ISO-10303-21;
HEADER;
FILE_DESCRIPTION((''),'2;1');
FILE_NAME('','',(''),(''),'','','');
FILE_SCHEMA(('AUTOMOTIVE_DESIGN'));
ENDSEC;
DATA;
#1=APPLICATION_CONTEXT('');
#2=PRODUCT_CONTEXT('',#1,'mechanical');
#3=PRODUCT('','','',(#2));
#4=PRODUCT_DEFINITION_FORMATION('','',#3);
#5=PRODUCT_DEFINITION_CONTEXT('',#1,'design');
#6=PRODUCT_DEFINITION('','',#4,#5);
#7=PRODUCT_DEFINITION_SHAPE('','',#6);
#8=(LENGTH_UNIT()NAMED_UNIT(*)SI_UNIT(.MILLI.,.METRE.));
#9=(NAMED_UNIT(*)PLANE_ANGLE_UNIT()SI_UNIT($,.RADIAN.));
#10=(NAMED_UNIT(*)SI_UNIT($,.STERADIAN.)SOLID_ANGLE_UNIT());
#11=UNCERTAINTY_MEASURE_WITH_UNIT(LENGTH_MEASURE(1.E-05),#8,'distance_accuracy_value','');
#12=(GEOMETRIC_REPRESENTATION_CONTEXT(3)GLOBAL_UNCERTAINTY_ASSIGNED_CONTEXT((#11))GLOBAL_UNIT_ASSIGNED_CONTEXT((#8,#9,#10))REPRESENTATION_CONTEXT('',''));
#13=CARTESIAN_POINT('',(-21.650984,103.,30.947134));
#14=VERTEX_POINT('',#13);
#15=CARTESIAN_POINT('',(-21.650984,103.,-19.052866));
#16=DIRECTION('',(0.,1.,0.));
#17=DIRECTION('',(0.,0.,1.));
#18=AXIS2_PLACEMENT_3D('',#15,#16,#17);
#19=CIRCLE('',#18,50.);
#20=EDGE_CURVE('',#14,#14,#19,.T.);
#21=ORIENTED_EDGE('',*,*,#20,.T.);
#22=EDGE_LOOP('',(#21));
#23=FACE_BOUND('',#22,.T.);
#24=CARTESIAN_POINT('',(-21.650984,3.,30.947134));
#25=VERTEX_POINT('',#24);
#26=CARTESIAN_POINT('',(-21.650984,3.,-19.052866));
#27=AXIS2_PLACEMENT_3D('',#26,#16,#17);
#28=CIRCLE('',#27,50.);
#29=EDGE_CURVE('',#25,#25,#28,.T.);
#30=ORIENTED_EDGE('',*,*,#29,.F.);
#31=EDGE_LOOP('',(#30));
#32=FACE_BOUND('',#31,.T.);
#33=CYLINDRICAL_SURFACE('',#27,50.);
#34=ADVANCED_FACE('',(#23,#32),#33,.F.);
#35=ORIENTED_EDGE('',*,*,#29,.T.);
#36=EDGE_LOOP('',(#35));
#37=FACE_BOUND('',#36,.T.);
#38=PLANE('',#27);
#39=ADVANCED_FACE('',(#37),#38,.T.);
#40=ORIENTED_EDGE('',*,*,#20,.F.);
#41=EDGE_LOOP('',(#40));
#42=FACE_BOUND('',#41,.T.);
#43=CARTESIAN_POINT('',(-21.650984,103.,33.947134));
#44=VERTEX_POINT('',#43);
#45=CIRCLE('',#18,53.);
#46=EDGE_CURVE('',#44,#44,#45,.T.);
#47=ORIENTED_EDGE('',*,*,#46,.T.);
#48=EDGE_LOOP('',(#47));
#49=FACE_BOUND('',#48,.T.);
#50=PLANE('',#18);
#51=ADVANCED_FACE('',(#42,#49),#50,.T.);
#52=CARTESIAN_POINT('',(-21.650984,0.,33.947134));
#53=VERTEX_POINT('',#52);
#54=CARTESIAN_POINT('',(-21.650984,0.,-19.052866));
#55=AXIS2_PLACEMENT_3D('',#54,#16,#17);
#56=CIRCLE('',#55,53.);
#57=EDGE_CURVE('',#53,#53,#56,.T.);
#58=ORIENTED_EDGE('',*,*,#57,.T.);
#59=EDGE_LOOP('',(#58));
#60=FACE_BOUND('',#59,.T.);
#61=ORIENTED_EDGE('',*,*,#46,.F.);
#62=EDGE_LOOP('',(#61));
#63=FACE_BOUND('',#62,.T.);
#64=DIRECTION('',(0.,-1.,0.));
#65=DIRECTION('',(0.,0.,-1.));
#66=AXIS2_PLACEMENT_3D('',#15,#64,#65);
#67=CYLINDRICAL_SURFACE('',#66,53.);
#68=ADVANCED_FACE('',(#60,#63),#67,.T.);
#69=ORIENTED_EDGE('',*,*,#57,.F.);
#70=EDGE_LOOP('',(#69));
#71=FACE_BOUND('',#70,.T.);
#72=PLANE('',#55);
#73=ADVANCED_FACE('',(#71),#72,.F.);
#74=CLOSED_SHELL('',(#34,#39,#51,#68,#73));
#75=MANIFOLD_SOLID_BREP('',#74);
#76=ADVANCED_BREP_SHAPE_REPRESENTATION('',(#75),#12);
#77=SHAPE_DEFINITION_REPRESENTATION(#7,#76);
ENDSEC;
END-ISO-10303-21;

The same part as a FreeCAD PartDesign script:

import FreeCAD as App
import Part
import Sketcher
from FreeCAD import Vector

doc = App.newDocument("Part")
body = doc.addObject("PartDesign::Body", "Body")

# Sketch on XZ plane
sketch1 = doc.addObject("Sketcher::SketchObject", "Sketch")
body.addObject(sketch1)
sketch1.AttachmentSupport = (doc.XZ_Plane, [""])
sketch1.MapMode = "FlatFace"
sketch1.addGeometry(Part.Circle(Vector(-22, -19, 0), Vector(0, 0, 1), 53), False)
sketch1.addConstraint([
    Sketcher.Constraint("Diameter", 0, 106.0),
    Sketcher.Constraint("DistanceX", 0, 3, -1, 1, 21.650984),
    Sketcher.Constraint("DistanceY", 0, 3, -1, 1, 19.052866),
])
pad1 = doc.addObject("PartDesign::Pad", "Pad")
body.addObject(pad1)
pad1.Profile = sketch1
pad1.Length = 103
pad1.Reversed = True

# Sketch on XZ plane
sketch2 = doc.addObject("Sketcher::SketchObject", "Sketch001")
body.addObject(sketch2)
sketch2.AttachmentSupport = (doc.XZ_Plane, [""])
sketch2.MapMode = "FlatFace"
sketch2.AttachmentOffset = App.Placement(Vector(0, 0, -103), App.Rotation())
sketch2.addGeometry(Part.Circle(Vector(-22, -19, 0), Vector(0, 0, 1), 50), False)
sketch2.addConstraint([
    Sketcher.Constraint("Diameter", 0, 100.0),
    Sketcher.Constraint("DistanceX", 0, 3, -1, 1, 21.650984),
    Sketcher.Constraint("DistanceY", 0, 3, -1, 1, 19.052866),
])
pocket1 = doc.addObject("PartDesign::Pocket", "Pocket")
body.addObject(pocket1)
pocket1.Profile = sketch2
pocket1.Length = 100
pocket1.Reversed = True

doc.recompute()
